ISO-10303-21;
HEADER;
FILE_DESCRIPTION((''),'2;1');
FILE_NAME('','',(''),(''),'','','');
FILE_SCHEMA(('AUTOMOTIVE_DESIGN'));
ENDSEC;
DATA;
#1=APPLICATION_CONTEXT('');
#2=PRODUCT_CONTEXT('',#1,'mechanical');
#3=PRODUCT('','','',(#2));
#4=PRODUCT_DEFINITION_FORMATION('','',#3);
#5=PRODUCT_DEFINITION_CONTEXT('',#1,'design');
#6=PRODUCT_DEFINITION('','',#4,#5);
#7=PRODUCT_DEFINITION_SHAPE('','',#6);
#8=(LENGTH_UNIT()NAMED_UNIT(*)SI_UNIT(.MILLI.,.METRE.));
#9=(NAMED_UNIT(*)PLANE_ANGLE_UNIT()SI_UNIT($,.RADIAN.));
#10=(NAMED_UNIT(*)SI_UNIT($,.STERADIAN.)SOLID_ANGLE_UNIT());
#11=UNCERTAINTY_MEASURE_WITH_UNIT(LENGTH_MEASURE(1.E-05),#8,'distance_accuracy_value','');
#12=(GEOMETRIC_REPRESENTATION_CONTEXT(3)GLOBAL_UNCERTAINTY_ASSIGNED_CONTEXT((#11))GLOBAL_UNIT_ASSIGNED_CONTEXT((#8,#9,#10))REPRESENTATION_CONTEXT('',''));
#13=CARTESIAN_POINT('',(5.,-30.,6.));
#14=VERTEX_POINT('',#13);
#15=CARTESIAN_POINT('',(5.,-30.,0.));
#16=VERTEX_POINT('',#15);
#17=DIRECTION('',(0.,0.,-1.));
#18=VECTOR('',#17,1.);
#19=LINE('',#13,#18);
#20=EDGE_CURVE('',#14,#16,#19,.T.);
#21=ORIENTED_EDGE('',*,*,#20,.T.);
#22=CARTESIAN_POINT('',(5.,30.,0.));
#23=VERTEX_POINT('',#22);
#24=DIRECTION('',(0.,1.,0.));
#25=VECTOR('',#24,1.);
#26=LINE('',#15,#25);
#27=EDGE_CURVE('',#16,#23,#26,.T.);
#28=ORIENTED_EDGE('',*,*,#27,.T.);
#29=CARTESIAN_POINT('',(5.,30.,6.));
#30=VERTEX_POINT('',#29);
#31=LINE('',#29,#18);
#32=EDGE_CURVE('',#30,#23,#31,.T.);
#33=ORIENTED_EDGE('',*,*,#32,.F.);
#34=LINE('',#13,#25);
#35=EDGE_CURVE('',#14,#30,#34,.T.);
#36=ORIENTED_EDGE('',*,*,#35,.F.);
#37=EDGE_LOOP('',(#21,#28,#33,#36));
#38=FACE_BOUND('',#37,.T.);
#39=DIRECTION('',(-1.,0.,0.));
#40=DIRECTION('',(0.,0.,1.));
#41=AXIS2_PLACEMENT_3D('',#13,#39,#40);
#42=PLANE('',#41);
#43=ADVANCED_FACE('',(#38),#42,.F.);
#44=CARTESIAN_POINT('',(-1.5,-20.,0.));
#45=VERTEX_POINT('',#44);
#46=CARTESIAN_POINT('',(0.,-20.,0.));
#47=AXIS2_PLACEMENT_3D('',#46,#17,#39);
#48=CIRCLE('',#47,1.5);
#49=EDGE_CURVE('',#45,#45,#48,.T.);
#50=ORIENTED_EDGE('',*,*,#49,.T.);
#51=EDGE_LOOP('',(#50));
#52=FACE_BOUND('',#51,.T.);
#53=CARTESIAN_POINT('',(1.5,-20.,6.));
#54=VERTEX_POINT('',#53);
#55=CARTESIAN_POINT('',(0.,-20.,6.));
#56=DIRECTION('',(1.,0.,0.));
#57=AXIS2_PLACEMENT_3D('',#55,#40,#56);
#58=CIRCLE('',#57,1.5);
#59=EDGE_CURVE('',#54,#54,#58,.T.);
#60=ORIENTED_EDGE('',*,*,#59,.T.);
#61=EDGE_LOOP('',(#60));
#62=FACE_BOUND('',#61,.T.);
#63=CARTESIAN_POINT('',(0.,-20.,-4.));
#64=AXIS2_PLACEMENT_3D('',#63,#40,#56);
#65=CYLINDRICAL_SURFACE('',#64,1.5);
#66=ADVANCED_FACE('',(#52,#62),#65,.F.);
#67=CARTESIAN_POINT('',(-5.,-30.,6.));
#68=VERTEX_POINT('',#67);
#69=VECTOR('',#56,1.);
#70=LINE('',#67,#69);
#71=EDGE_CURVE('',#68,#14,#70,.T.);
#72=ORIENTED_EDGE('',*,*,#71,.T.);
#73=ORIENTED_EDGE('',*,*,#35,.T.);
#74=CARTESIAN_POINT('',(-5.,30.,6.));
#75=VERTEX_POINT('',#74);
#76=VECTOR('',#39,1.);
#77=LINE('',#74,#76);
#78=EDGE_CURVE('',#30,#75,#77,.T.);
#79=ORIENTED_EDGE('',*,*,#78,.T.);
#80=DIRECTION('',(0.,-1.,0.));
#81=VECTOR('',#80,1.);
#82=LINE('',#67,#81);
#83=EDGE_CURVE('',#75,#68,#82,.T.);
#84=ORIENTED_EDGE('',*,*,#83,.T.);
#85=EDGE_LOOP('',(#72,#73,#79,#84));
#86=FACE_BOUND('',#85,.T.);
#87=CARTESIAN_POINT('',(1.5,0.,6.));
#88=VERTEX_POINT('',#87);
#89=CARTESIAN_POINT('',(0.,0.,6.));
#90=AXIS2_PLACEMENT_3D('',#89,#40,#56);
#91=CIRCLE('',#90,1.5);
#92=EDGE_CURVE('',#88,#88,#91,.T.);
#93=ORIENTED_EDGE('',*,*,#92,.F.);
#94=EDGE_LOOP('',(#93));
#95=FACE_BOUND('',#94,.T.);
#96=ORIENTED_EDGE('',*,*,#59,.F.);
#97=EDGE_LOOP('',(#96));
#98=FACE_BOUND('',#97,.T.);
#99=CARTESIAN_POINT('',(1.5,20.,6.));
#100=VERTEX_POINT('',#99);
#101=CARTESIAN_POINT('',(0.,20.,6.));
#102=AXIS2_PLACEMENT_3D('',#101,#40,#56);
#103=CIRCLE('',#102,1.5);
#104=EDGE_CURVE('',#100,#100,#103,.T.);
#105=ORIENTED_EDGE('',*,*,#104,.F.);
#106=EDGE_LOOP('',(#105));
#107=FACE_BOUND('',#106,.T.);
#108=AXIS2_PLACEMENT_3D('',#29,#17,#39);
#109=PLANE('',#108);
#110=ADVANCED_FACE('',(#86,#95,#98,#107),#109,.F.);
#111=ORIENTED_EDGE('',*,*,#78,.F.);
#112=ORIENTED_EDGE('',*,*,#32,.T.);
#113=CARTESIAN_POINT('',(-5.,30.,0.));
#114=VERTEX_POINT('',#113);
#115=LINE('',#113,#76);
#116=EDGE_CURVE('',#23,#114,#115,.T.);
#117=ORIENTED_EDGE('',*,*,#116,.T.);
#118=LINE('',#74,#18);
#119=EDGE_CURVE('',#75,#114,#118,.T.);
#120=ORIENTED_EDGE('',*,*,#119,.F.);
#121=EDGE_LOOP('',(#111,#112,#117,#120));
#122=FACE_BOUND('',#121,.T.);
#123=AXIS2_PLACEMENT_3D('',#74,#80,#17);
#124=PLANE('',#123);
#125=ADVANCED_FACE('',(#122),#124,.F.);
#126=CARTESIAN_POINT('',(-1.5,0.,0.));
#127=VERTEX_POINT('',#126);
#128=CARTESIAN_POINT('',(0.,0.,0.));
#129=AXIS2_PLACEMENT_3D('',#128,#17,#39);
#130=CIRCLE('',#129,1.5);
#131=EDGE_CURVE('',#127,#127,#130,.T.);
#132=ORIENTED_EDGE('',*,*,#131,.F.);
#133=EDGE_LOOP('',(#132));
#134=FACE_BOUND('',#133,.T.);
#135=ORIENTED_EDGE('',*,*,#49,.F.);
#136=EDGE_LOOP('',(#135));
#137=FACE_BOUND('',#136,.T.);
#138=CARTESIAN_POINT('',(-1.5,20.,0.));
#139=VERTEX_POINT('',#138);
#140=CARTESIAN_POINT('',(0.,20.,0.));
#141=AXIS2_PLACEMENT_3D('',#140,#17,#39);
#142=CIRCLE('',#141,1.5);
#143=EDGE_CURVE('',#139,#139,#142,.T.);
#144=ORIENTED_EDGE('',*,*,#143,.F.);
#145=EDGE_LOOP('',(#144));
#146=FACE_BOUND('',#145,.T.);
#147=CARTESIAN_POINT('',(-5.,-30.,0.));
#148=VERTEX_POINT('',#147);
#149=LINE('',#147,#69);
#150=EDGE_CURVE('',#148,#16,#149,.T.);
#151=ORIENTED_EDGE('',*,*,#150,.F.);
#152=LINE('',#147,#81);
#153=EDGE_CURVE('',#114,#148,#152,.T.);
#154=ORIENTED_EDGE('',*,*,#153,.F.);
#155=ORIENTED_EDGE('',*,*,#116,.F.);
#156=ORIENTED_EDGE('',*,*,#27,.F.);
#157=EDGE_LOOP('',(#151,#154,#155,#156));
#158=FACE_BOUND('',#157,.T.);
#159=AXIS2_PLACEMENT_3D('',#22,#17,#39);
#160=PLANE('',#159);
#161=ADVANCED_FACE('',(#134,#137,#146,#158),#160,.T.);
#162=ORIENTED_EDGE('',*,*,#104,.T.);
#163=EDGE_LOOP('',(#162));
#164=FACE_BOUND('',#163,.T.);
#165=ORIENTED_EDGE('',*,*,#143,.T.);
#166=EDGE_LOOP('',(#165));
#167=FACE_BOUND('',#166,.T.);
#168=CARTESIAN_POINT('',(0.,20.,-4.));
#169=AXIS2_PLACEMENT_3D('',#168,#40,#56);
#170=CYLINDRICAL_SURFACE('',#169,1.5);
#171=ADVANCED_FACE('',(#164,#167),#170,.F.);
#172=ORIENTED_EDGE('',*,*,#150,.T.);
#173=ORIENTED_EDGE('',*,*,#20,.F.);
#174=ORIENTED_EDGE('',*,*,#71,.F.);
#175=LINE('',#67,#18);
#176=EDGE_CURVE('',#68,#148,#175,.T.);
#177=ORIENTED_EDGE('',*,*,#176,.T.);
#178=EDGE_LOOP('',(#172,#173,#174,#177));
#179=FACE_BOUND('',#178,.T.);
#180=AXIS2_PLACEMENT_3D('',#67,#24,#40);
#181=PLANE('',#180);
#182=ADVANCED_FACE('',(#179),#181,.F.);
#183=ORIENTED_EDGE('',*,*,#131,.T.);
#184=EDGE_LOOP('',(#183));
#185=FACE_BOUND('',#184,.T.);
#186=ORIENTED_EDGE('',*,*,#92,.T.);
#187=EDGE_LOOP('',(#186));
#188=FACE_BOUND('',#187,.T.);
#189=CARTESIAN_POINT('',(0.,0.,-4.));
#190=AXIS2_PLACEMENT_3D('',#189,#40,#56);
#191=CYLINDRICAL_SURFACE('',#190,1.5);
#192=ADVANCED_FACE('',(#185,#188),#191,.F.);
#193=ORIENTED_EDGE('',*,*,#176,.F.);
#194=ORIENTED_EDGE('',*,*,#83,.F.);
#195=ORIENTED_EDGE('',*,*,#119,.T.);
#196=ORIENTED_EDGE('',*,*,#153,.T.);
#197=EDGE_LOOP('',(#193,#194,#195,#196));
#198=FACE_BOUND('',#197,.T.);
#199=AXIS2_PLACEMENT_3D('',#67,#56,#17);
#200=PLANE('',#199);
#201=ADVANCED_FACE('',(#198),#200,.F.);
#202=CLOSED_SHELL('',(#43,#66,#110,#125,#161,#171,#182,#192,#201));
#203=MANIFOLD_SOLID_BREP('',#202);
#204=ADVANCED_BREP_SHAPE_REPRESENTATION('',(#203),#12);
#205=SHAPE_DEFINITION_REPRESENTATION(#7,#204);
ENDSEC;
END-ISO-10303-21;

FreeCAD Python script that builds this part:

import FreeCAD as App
import Part
import Sketcher

V = App.Vector
Q = App.Units.Quantity


def add_polygon(sketch, points):
    """Adds a closed chain of lines whose ends are joined by coincident constraints."""
    first, n = sketch.GeometryCount, len(points)
    for a, b in zip(points, points[1:] + points[:1]):
        sketch.addGeometry(Part.LineSegment(App.Vector(*a, 0), App.Vector(*b, 0)), False)
    for i in range(n):
        sketch.addConstraint(Sketcher.Constraint("Coincident", first + i, 2, first + (i + 1) % n, 1))

doc = App.newDocument("Part")
body = doc.addObject("PartDesign::Body", "Body")

sketch1 = body.newObject("Sketcher::SketchObject", "Sketch")
sketch1.AttachmentSupport = (doc.getObject("XY_Plane"), [""])
sketch1.MapMode = "FlatFace"
add_polygon(sketch1, [(-5, 30), (-5, -30), (5, -30), (5, 30)])
sketch1.addConstraint([
    Sketcher.Constraint("Vertical", 0),
    Sketcher.Constraint("Horizontal", 1),
    Sketcher.Constraint("Vertical", 2),
    Sketcher.Constraint("Horizontal", 3),
    Sketcher.Constraint("Symmetric", 0, 2, 2, 2, -1, 1),
    Sketcher.Constraint("DistanceX", 1, 1, 1, 2, Q("10 mm")),
    Sketcher.Constraint("DistanceY", 0, 2, 0, 1, Q("60 mm")),
])
pad1 = body.newObject("PartDesign::Pad", "Pad")
pad1.Profile = sketch1
pad1.Length = 6

sketch2 = body.newObject("Sketcher::SketchObject", "Sketch001")
sketch2.AttachmentSupport = (doc.getObject("XY_Plane"), [""])
sketch2.MapMode = "FlatFace"
sketch2.AttachmentOffset = App.Placement(V(0, 0, 6), App.Rotation())
sketch2.addGeometry([
    Part.Circle(V(0, -20, 0), V(0, 0, 1), 1.5),
    Part.Circle(V(0, 0, 0), V(0, 0, 1), 1.5),
    Part.Circle(V(0, 20, 0), V(0, 0, 1), 1.5),
], False)
sketch2.addConstraint([
    Sketcher.Constraint("Coincident", 1, 3, -1, 1),
    Sketcher.Constraint("Equal", 0, 1),
    Sketcher.Constraint("Equal", 1, 2),
    Sketcher.Constraint("Symmetric", 0, 3, 2, 3, -1, 1),
    Sketcher.Constraint("PointOnObject", 0, 3, -2),
    Sketcher.Constraint("Diameter", 0, Q("3 mm")),
    Sketcher.Constraint("DistanceY", 0, 3, -1, 1, Q("20 mm")),
])
pocket1 = body.newObject("PartDesign::Pocket", "Pocket")
pocket1.Profile = sketch2
pocket1.Length = 10

doc.recompute()
